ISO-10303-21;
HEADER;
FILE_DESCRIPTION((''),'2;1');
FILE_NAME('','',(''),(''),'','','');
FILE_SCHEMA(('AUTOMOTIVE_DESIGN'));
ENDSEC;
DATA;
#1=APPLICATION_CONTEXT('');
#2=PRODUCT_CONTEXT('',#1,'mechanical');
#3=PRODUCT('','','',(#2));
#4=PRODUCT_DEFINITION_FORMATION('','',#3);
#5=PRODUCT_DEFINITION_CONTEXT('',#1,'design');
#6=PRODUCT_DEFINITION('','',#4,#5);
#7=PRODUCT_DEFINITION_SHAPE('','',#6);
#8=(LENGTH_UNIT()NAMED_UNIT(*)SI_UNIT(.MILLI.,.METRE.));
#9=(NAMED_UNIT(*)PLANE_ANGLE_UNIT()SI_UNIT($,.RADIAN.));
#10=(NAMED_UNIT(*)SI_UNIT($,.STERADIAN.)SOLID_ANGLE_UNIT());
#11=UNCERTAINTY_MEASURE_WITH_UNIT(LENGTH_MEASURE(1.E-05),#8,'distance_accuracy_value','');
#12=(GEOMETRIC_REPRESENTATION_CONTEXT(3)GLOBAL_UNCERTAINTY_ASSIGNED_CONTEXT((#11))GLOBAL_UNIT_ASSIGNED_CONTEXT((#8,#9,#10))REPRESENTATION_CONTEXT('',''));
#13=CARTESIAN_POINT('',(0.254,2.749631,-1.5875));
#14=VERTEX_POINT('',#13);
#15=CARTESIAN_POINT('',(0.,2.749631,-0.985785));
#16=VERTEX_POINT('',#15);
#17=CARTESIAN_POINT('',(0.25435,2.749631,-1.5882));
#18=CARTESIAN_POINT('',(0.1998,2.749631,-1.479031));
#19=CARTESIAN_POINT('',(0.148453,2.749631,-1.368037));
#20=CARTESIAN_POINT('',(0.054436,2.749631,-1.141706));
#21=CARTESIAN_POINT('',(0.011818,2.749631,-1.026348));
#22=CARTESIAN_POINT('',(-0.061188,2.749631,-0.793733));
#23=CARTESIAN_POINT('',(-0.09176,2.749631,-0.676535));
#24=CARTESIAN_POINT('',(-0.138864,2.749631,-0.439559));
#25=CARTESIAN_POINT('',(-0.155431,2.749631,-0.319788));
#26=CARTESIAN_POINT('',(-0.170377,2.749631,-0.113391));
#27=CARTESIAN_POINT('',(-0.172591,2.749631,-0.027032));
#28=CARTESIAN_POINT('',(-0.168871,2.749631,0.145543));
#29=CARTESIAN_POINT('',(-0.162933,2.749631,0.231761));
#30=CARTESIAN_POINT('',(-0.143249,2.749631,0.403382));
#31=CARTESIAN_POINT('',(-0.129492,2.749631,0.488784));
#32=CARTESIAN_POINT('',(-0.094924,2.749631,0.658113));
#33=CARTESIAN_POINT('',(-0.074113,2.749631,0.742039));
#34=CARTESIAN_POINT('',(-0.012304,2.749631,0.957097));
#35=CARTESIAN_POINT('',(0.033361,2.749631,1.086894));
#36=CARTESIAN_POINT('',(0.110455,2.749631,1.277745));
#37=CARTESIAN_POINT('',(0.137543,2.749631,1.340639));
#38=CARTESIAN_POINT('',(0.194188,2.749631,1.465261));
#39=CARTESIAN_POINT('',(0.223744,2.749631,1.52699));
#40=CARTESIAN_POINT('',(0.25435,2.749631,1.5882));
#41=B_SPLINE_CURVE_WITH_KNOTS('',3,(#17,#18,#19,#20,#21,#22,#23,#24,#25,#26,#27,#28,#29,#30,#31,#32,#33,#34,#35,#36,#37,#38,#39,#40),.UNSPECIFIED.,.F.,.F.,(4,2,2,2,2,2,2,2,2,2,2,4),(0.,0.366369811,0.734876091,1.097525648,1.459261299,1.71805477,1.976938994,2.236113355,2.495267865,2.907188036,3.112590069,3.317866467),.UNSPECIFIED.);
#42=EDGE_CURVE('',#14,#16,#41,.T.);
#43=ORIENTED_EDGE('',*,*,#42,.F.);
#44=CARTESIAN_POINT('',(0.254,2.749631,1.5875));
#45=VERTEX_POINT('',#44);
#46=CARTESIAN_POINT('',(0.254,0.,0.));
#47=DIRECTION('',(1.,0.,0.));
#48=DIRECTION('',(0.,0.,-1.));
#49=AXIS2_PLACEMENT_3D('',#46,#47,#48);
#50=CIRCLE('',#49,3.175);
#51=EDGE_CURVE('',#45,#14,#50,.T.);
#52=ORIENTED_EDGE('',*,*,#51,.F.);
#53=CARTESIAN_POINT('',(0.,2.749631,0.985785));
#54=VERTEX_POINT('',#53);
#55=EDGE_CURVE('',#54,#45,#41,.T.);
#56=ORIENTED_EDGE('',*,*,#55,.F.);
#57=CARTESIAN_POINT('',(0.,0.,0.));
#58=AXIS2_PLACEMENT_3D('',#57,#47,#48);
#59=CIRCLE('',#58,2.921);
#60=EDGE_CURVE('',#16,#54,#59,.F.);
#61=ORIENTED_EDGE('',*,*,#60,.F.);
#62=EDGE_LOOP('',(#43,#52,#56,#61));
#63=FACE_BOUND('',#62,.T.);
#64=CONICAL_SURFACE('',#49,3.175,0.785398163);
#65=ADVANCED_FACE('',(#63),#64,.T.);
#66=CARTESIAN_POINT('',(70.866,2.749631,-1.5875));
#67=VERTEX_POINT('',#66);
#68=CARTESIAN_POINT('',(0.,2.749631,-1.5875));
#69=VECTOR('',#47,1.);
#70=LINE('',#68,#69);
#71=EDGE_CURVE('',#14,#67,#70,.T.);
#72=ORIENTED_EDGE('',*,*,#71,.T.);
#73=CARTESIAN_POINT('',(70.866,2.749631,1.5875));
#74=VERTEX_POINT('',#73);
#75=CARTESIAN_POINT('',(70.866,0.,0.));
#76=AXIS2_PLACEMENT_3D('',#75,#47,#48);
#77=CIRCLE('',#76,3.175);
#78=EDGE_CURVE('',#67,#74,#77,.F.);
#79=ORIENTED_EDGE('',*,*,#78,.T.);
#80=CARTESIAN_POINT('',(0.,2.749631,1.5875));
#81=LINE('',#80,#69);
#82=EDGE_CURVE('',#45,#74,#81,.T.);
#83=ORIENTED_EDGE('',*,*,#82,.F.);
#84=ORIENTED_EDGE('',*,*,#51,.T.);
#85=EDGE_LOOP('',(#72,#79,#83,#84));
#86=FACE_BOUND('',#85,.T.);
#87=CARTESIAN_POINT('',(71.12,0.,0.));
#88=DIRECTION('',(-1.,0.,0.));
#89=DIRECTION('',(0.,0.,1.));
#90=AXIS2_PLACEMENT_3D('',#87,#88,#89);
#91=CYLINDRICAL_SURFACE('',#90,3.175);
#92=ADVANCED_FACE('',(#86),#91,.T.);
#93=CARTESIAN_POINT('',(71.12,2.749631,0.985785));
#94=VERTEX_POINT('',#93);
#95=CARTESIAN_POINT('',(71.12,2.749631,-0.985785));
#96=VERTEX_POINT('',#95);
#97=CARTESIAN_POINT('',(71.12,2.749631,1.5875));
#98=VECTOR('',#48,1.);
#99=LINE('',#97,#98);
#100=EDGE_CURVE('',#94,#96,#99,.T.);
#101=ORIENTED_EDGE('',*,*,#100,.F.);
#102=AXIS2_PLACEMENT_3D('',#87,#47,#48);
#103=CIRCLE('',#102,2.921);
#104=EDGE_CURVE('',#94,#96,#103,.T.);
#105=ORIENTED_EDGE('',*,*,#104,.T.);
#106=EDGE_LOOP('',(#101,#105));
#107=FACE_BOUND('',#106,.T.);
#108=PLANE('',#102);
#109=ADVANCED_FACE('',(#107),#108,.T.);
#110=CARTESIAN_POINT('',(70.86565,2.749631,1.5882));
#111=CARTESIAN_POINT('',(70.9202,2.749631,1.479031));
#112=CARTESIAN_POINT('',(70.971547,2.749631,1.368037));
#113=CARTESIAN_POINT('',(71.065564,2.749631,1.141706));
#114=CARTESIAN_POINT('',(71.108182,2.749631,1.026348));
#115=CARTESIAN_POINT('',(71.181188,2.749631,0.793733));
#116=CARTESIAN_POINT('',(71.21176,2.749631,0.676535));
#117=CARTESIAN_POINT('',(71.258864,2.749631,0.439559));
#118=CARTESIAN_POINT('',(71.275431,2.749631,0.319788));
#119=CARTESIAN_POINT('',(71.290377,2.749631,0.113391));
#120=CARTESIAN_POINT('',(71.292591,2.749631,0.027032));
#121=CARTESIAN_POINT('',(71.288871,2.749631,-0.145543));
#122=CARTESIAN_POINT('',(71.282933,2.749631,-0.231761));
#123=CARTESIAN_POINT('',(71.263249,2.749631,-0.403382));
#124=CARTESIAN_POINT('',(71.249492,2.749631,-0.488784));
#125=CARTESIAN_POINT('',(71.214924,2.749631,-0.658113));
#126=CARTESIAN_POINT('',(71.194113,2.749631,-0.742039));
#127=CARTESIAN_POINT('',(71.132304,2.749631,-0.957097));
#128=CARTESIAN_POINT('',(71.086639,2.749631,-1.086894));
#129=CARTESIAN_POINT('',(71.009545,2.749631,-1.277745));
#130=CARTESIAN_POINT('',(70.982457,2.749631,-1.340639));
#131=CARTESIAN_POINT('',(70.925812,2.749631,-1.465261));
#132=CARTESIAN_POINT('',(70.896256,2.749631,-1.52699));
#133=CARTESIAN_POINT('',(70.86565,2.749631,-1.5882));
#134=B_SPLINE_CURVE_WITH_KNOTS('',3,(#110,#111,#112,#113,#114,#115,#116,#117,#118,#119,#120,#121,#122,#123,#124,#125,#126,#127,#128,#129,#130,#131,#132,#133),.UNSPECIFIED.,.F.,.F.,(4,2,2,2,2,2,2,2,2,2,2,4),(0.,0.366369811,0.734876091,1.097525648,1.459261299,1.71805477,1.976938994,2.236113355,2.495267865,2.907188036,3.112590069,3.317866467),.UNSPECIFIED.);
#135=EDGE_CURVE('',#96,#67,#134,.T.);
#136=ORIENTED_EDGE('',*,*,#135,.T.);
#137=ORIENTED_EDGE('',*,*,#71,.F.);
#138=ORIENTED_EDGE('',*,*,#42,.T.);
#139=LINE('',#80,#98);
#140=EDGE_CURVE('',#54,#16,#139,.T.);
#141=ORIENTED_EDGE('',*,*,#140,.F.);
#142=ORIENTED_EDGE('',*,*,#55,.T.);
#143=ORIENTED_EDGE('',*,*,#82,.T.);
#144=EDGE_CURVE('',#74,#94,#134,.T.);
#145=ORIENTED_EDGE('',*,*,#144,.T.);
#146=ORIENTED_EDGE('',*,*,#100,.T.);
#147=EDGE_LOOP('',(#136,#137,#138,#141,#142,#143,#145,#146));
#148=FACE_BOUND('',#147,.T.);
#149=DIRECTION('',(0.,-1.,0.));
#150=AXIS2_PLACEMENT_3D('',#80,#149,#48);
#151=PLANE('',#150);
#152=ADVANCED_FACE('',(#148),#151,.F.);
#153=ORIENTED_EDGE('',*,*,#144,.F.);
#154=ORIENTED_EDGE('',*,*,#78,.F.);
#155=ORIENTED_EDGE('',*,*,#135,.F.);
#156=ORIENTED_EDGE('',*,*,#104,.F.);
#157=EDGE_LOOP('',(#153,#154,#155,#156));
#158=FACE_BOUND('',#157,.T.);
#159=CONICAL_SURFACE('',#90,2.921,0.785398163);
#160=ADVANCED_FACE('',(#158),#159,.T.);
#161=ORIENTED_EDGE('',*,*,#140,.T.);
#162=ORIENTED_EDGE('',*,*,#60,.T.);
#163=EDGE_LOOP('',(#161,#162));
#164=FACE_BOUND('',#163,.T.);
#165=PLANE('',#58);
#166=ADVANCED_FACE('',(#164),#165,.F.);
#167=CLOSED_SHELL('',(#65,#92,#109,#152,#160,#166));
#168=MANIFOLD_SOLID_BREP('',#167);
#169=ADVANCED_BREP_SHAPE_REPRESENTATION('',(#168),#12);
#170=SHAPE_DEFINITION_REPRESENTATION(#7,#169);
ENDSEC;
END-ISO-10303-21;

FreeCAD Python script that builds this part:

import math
import FreeCAD as App
import Part
import Sketcher
Q = App.Units.Quantity


def edges_at(feature, points):
    """Names of the edges that pass closest to the given points."""
    edges = feature.Shape.Edges
    near = lambda p: min(range(len(edges)), key=lambda i: edges[i].distToShape(Part.Vertex(*p))[0])
    return sorted({f"Edge{near(p) + 1}" for p in points})

doc = App.newDocument("Part")
body = doc.addObject("PartDesign::Body", "Body")

sketch1 = body.newObject("Sketcher::SketchObject", "Sketch")
sketch1.AttachmentSupport = (doc.getObject("YZ_Plane"), [""])
sketch1.MapMode = "FlatFace"
sketch1.addGeometry(Part.Circle(App.Vector(0, 0, 0), App.Vector(0, 0, 1), 3.2), False)
sketch1.addConstraint(Sketcher.Constraint("Coincident", 0, 3, -1, 1))
sketch1.addConstraint(Sketcher.Constraint("Diameter", 0, Q("0.25 in")))
pad1 = body.newObject("PartDesign::Pad", "Pad")
pad1.Profile = sketch1
pad1.Length = Q("2.8 in")
doc.recompute()

chamfer = body.newObject("PartDesign::Chamfer", "Chamfer")
chamfer.Base = (pad1, edges_at(pad1, [(0, 0, 3.175), (71.12, 0, 3.175)]))
chamfer.Size = Q("0.01 in")

sketch2 = body.newObject("Sketcher::SketchObject", "Sketch001")
sketch2.AttachmentSupport = (doc.getObject("YZ_Plane"), [""])
sketch2.MapMode = "FlatFace"
sketch2.AttachmentOffset = App.Placement(App.Vector(0, 0, 2.8 * 25.4), App.Rotation())
sketch2.addGeometry(Part.LineSegment(App.Vector(2.7, 1.6, 0), App.Vector(2.7, -1.6, 0)), False)
sketch2.addGeometry(Part.ArcOfCircle(Part.Circle(App.Vector(0, 0, 0), App.Vector(0, 0, 1), 3.2), math.radians(-30), math.radians(30)), False)
sketch2.addConstraint(Sketcher.Constraint("Coincident", 0, 1, 1, 2))
sketch2.addConstraint(Sketcher.Constraint("Coincident", 1, 1, 0, 2))
sketch2.addConstraint(Sketcher.Constraint("Vertical", 0))
sketch2.addConstraint(Sketcher.Constraint("Coincident", 1, 3, -1, 1))
sketch2.addConstraint(Sketcher.Constraint("Radius", 1, Q("0.125 in")))
sketch2.addConstraint(Sketcher.Constraint("DistanceY", 0, 2, 0, 1, Q("0.125 in")))
pocket1 = body.newObject("PartDesign::Pocket", "Pocket")
pocket1.Profile = sketch2
pocket1.Type = "ThroughAll"

doc.recompute()
